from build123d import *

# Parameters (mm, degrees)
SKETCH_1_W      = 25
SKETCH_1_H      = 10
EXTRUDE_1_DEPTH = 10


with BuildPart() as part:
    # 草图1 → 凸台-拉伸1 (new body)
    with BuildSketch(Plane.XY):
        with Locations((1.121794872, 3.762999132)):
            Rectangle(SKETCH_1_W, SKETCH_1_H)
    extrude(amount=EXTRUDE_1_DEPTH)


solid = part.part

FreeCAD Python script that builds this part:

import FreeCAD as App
import Part
import Sketcher
Q = App.Units.Quantity


def add_polygon(sketch, points):
    """Adds a closed chain of lines whose ends are joined by coincident constraints."""
    first, n = sketch.GeometryCount, len(points)
    for a, b in zip(points, points[1:] + points[:1]):
        sketch.addGeometry(Part.LineSegment(App.Vector(*a, 0), App.Vector(*b, 0)), False)
    for i in range(n):
        sketch.addConstraint(Sketcher.Constraint("Coincident", first + i, 2, first + (i + 1) % n, 1))

doc = App.newDocument("Part")
params = doc.addObject("Spreadsheet::Sheet", "Params")
for row, (alias, value) in enumerate([
    ("sketch1_width", "25 mm"),
    ("sketch1_height", "10 mm"),
    ("pad1_length", "10 mm"),
], start=1):
    params.set(f"A{row}", alias)
    params.set(f"B{row}", "=" + value)
    params.setAlias(f"B{row}", alias)

body = doc.addObject("PartDesign::Body", "Body")

sketch1 = body.newObject("Sketcher::SketchObject", "Sketch")
sketch1.AttachmentSupport = (doc.getObject("XY_Plane"), [""])
sketch1.MapMode = "FlatFace"
add_polygon(sketch1, [(-11, 9), (-11, -1), (14, -1), (14, 9)])
sketch1.addConstraint(Sketcher.Constraint("Vertical", 0))
sketch1.addConstraint(Sketcher.Constraint("Horizontal", 1))
sketch1.addConstraint(Sketcher.Constraint("Vertical", 2))
sketch1.addConstraint(Sketcher.Constraint("Horizontal", 3))
sketch1.addConstraint(Sketcher.Constraint("DistanceX", 1, 1, 1, 2, Q("25 mm")))
sketch1.addConstraint(Sketcher.Constraint("DistanceY", 0, 2, 0, 1, Q("10 mm")))
sketch1.addConstraint(Sketcher.Constraint("DistanceY", 0, 2, -1, 1, Q("1.237001 mm")))
sketch1.addConstraint(Sketcher.Constraint("DistanceX", 0, 2, -1, 1, Q("11.378205 mm")))
sketch1.setExpression("Constraints[8]", "Params.sketch1_width")
sketch1.setExpression("Constraints[9]", "Params.sketch1_height")
pad1 = body.newObject("PartDesign::Pad", "Pad")
pad1.Profile = sketch1
pad1.setExpression("Length", "Params.pad1_length")

doc.recompute()
